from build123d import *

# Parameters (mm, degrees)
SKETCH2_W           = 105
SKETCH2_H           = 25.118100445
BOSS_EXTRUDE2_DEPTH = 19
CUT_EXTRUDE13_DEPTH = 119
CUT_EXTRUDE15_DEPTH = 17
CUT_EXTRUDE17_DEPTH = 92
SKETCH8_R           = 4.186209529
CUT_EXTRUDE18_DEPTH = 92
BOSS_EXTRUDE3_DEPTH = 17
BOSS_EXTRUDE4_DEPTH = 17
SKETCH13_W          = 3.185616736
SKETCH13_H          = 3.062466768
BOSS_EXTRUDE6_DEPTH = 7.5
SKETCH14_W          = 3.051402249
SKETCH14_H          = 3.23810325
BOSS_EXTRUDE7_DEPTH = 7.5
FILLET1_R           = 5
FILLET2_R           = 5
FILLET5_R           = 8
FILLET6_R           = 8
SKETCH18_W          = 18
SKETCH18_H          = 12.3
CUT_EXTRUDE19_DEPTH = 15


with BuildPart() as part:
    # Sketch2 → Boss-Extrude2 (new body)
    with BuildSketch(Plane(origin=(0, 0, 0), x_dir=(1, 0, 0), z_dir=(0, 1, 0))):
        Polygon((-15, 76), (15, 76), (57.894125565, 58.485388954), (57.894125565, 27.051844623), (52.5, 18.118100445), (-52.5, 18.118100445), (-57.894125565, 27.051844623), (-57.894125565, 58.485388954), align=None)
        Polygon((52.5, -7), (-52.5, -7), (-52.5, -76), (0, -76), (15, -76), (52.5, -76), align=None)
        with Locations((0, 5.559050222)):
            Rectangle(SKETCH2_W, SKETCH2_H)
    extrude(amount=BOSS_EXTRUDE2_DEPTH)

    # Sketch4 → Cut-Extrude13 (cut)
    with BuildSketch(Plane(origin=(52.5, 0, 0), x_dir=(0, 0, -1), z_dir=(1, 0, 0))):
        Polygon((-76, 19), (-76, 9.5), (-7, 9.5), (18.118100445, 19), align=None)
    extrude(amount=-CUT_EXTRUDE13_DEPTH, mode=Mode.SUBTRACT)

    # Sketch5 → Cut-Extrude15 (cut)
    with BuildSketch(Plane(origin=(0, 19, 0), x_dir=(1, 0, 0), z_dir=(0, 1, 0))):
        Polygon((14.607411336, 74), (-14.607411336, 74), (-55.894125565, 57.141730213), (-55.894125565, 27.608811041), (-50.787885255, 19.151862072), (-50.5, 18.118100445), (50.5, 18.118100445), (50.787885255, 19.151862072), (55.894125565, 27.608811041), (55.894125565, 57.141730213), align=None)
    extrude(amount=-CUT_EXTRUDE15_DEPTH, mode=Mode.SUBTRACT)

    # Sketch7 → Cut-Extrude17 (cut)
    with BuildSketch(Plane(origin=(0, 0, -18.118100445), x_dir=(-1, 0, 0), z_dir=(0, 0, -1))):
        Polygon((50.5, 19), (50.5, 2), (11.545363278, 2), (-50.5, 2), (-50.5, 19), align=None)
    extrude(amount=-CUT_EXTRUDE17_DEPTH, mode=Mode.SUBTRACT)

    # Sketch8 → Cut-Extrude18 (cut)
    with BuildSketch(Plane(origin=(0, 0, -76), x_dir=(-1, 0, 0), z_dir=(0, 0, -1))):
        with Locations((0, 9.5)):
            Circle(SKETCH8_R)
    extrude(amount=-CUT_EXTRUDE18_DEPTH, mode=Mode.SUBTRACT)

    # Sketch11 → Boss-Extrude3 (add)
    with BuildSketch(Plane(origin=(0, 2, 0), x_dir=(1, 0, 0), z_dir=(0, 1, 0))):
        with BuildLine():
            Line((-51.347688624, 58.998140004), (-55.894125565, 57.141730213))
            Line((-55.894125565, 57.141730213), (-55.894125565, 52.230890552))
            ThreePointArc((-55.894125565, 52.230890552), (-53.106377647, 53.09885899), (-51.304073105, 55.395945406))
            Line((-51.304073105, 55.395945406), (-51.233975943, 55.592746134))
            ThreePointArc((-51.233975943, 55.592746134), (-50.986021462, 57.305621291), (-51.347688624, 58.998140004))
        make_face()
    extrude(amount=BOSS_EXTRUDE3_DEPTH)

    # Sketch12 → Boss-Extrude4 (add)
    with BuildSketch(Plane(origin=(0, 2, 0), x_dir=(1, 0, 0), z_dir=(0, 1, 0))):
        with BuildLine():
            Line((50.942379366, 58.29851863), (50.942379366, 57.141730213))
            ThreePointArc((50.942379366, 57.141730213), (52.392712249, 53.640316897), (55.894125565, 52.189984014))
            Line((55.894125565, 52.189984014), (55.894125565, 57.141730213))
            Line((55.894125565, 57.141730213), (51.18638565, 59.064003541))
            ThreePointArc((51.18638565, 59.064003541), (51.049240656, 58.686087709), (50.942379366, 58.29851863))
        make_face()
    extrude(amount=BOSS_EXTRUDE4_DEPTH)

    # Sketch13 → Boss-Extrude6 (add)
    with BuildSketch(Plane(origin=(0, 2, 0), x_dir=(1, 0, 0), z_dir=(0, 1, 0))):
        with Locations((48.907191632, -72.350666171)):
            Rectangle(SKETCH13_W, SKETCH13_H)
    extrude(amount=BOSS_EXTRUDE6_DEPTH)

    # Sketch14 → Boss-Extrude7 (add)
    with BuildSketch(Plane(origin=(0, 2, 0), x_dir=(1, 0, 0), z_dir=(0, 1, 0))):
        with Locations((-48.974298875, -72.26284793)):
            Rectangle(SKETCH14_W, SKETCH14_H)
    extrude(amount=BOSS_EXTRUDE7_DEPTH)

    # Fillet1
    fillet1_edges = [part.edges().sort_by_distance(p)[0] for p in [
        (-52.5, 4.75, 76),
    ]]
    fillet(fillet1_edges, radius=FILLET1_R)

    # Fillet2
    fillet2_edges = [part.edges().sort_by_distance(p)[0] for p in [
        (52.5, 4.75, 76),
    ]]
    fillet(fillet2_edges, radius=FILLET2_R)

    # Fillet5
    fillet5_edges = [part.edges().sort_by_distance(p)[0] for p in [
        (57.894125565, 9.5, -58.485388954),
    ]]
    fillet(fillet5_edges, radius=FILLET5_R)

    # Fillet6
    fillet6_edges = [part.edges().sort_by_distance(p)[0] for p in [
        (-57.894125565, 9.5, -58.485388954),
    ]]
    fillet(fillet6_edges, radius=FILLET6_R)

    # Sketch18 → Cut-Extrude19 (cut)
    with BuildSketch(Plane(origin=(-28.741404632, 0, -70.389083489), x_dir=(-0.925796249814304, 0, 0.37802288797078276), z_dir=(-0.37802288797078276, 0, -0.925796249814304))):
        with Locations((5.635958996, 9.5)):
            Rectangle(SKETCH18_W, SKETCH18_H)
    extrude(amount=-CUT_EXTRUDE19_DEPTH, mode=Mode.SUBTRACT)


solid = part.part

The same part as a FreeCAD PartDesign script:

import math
import FreeCAD as App
import Part
import Sketcher
from FreeCAD import Vector


def edges_at(feature, points):
    """Names of the edges that pass closest to the given points."""
    edges = feature.Shape.Edges
    near = lambda p: min(range(len(edges)), key=lambda i: edges[i].distToShape(Part.Vertex(*p))[0])
    return sorted({f"Edge{near(p) + 1}" for p in points})


def add_polygon(sketch, points):
    """Adds a closed chain of lines whose ends are joined by coincident constraints."""
    first, n = sketch.GeometryCount, len(points)
    for a, b in zip(points, points[1:] + points[:1]):
        sketch.addGeometry(Part.LineSegment(App.Vector(*a, 0), App.Vector(*b, 0)), False)
    for i in range(n):
        sketch.addConstraint(Sketcher.Constraint("Coincident", first + i, 2, first + (i + 1) % n, 1))

doc = App.newDocument("Part")
body = doc.addObject("PartDesign::Body", "Body")

sketch1 = doc.addObject("Sketcher::SketchObject", "Sketch")
body.addObject(sketch1)
sketch1.AttachmentSupport = (doc.XZ_Plane, [""])
sketch1.MapMode = "FlatFace"
add_polygon(sketch1, [(15, -76), (-15, -76), (-58, -58), (-58, -27), (-52, -18), (-52, 76), (52, 76), (52, -18), (58, -27), (58, -58)])
sketch1.addConstraint(Sketcher.Constraint("Horizontal", 0))
sketch1.addConstraint(Sketcher.Constraint("Vertical", 2))
sketch1.addConstraint(Sketcher.Constraint("Vertical", 4))
sketch1.addConstraint(Sketcher.Constraint("Horizontal", 5))
sketch1.addConstraint(Sketcher.Constraint("Vertical", 6))
sketch1.addConstraint(Sketcher.Constraint("Vertical", 8))
sketch1.addConstraint(Sketcher.Constraint("Symmetric", 3, 2, 6, 2, -2))
sketch1.addConstraint(Sketcher.Constraint("Symmetric", 2, 2, 7, 2, -2))
sketch1.addConstraint(Sketcher.Constraint("Horizontal", 1, 2, 8, 2))
sketch1.addConstraint(Sketcher.Constraint("Equal", 1, 9))
sketch1.addConstraint(Sketcher.Constraint("DistanceX", 0, 2, 0, 1, 30.0))
sketch1.addConstraint(Sketcher.Constraint("DistanceX", 5, 1, 5, 2, 105.0))
sketch1.addConstraint(Sketcher.Constraint("DistanceY", 0, 2, -1, 1, 76.0))
sketch1.addConstraint(Sketcher.Constraint("DistanceY", -1, 1, 4, 2, 76.0))
sketch1.addConstraint(Sketcher.Constraint("DistanceY", 4, 1, 4, 2, 94.1181))
sketch1.addConstraint(Sketcher.Constraint("DistanceY", 2, 1, 2, 2, 31.433544))
sketch1.addConstraint(Sketcher.Constraint("DistanceY", 1, 2, -1, 1, 58.485389))
sketch1.addConstraint(Sketcher.Constraint("DistanceX", 2, 2, 7, 2, 115.788251))
pad1 = doc.addObject("PartDesign::Pad", "Pad")
body.addObject(pad1)
pad1.Profile = sketch1
pad1.Length = 19
pad1.Reversed = True

sketch2 = doc.addObject("Sketcher::SketchObject", "Sketch001")
body.addObject(sketch2)
sketch2.AttachmentSupport = (doc.YZ_Plane, [""])
sketch2.MapMode = "FlatFace"
sketch2.AttachmentOffset = App.Placement(Vector(0, 0, 52.5), App.Rotation())
add_polygon(sketch2, [(19, 76), (10, 76), (10, 7), (19, -18)])
sketch2.addConstraint(Sketcher.Constraint("Horizontal", 0))
sketch2.addConstraint(Sketcher.Constraint("Vertical", 1))
sketch2.addConstraint(Sketcher.Constraint("Vertical", 3))
sketch2.addConstraint(Sketcher.Constraint("DistanceY", 1, 2, 1, 1, 69.0))
sketch2.addConstraint(Sketcher.Constraint("DistanceX", 0, 2, 0, 1, 9.5))
sketch2.addConstraint(Sketcher.Constraint("DistanceY", -1, 1, 0, 2, 76.0))
sketch2.addConstraint(Sketcher.Constraint("DistanceX", -1, 1, 2, 2, 19.0))
sketch2.addConstraint(Sketcher.Constraint("DistanceY", 3, 1, 3, 2, 94.1181))
pocket1 = doc.addObject("PartDesign::Pocket", "Pocket")
body.addObject(pocket1)
pocket1.Profile = sketch2
pocket1.Length = 119

sketch3 = doc.addObject("Sketcher::SketchObject", "Sketch002")
body.addObject(sketch3)
sketch3.AttachmentSupport = (doc.XZ_Plane, [""])
sketch3.MapMode = "FlatFace"
sketch3.AttachmentOffset = App.Placement(Vector(0, 0, -19), App.Rotation())
add_polygon(sketch3, [(14.6, -74), (-14.6, -74), (-55.9, -57.1), (-55.9, -27.6), (-50.8, -19.2), (-50.5, -18.1), (50.5, -18.1), (50.8, -19.2), (55.9, -27.6), (55.9, -57.1)])
sketch3.addConstraint(Sketcher.Constraint("Horizontal", 0))
sketch3.addConstraint(Sketcher.Constraint("Vertical", 2))
sketch3.addConstraint(Sketcher.Constraint("Horizontal", 5))
sketch3.addConstraint(Sketcher.Constraint("Vertical", 8))
sketch3.addConstraint(Sketcher.Constraint("Symmetric", 3, 2, 6, 2, -2))
sketch3.addConstraint(Sketcher.Constraint("Symmetric", 2, 2, 7, 2, -2))
sketch3.addConstraint(Sketcher.Constraint("Horizontal", 1, 2, 8, 2))
sketch3.addConstraint(Sketcher.Constraint("Equal", 4, 6))
sketch3.addConstraint(Sketcher.Constraint("Equal", 1, 9))
sketch3.addConstraint(Sketcher.Constraint("DistanceX", 5, 1, 5, 2, 101.0))
sketch3.addConstraint(Sketcher.Constraint("DistanceY", 0, 2, -1, 1, 74.0))
sketch3.addConstraint(Sketcher.Constraint("Distance", 4, 1.073099))
sketch3.addConstraint(Sketcher.Constraint("DistanceY", 2, 1, 2, 2, 29.532919))
sketch3.addConstraint(Sketcher.Constraint("DistanceY", 4, 2, -1, 1, 18.1181))
sketch3.addConstraint(Sketcher.Constraint("Distance", 3, 9.878951))
sketch3.addConstraint(Sketcher.Constraint("DistanceX", 0, 2, 0, 1, 29.214823))
sketch3.addConstraint(Sketcher.Constraint("DistanceY", 1, 2, -1, 1, 57.14173))
sketch3.addConstraint(Sketcher.Constraint("DistanceX", 2, 2, 3, 2, 5.10624))
pocket2 = doc.addObject("PartDesign::Pocket", "Pocket001")
body.addObject(pocket2)
pocket2.Profile = sketch3
pocket2.Length = 17
pocket2.Reversed = True

sketch4 = doc.addObject("Sketcher::SketchObject", "Sketch003")
body.addObject(sketch4)
sketch4.AttachmentSupport = (doc.XY_Plane, [""])
sketch4.MapMode = "FlatFace"
sketch4.AttachmentOffset = App.Placement(Vector(0, 0, -18.1181), App.Rotation())
add_polygon(sketch4, [(-50, 2), (-50, 19), (50, 19), (50, 2)])
sketch4.addConstraint(Sketcher.Constraint("Vertical", 0))
sketch4.addConstraint(Sketcher.Constraint("Horizontal", 1))
sketch4.addConstraint(Sketcher.Constraint("Vertical", 2))
sketch4.addConstraint(Sketcher.Constraint("Horizontal", 3))
sketch4.addConstraint(Sketcher.Constraint("DistanceX", 1, 1, 1, 2, 101.0))
sketch4.addConstraint(Sketcher.Constraint("DistanceY", 0, 1, 0, 2, 17.0))
sketch4.addConstraint(Sketcher.Constraint("DistanceY", -1, 1, 0, 2, 19.0))
sketch4.addConstraint(Sketcher.Constraint("DistanceX", 0, 2, -1, 1, 50.5))
pocket3 = doc.addObject("PartDesign::Pocket", "Pocket002")
body.addObject(pocket3)
pocket3.Profile = sketch4
pocket3.Length = 92
pocket3.Reversed = True

sketch5 = doc.addObject("Sketcher::SketchObject", "Sketch004")
body.addObject(sketch5)
sketch5.AttachmentSupport = (doc.XY_Plane, [""])
sketch5.MapMode = "FlatFace"
sketch5.AttachmentOffset = App.Placement(Vector(0, 0, -76), App.Rotation())
sketch5.addGeometry(Part.Circle(Vector(0, 9.5, 0), Vector(0, 0, 1), 4.2), False)
sketch5.addConstraint(Sketcher.Constraint("PointOnObject", 0, 3, -2))
sketch5.addConstraint(Sketcher.Constraint("DistanceY", -1, 1, 0, 3, 9.5))
sketch5.addConstraint(Sketcher.Constraint("Diameter", 0, 8.372419))
pocket4 = doc.addObject("PartDesign::Pocket", "Pocket003")
body.addObject(pocket4)
pocket4.Profile = sketch5
pocket4.Length = 92
pocket4.Reversed = True

sketch6 = doc.addObject("Sketcher::SketchObject", "Sketch005")
body.addObject(sketch6)
sketch6.AttachmentSupport = (doc.XZ_Plane, [""])
sketch6.MapMode = "FlatFace"
sketch6.AttachmentOffset = App.Placement(Vector(0, 0, -2), App.Rotation())
sketch6.addGeometry(Part.LineSegment(Vector(-51.35, -59, 0), Vector(-55.89, -57.14, 0)), False)
sketch6.addGeometry(Part.LineSegment(Vector(-55.89, -57.14, 0), Vector(-55.89, -52.23, 0)), False)
sketch6.addGeometry(Part.ArcOfCircle(Part.Circle(Vector(-55.89, -57.14, 0), Vector(0, 0, 1), 4.91), math.radians(21), math.radians(90)), False)
sketch6.addGeometry(Part.LineSegment(Vector(-51.3, -55.4, 0), Vector(-51.23, -55.59, 0)), False)
sketch6.addGeometry(Part.ArcOfCircle(Part.Circle(Vector(-55.89, -57.14, 0), Vector(0, 0, 1), 4.91), math.radians(-22), math.radians(18)), False)
sketch6.addConstraint(Sketcher.Constraint("Coincident", 0, 2, 1, 1))
sketch6.addConstraint(Sketcher.Constraint("Coincident", 1, 2, 2, 2))
sketch6.addConstraint(Sketcher.Constraint("Coincident", 2, 1, 3, 1))
sketch6.addConstraint(Sketcher.Constraint("Coincident", 3, 2, 4, 2))
sketch6.addConstraint(Sketcher.Constraint("Coincident", 4, 1, 0, 1))
sketch6.addConstraint(Sketcher.Constraint("Vertical", 1))
sketch6.addConstraint(Sketcher.Constraint("Coincident", 4, 3, 2, 3))
sketch6.addConstraint(Sketcher.Constraint("Coincident", 0, 2, 2, 3))
sketch6.addConstraint(Sketcher.Constraint("Equal", 2, 4))
sketch6.addConstraint(Sketcher.Constraint("Radius", 2, 4.91084))
sketch6.addConstraint(Sketcher.Constraint("DistanceY", 3, 2, 2, 1, 0.196801))
sketch6.addConstraint(Sketcher.Constraint("Distance", 3, 0.208912))
sketch6.addConstraint(Sketcher.Constraint("DistanceY", 2, 3, -1, 1, 57.14173))
sketch6.addConstraint(Sketcher.Constraint("DistanceX", 4, 1, -1, 1, 51.347689))
sketch6.addConstraint(Sketcher.Constraint("DistanceY", 4, 1, -1, 1, 58.99814))
pad2 = doc.addObject("PartDesign::Pad", "Pad001")
body.addObject(pad2)
pad2.Profile = sketch6
pad2.Length = 17
pad2.Reversed = True

sketch7 = doc.addObject("Sketcher::SketchObject", "Sketch006")
body.addObject(sketch7)
sketch7.AttachmentSupport = (doc.XZ_Plane, [""])
sketch7.MapMode = "FlatFace"
sketch7.AttachmentOffset = App.Placement(Vector(0, 0, -2), App.Rotation())
sketch7.addGeometry(Part.LineSegment(Vector(50.9, -58.3, 0), Vector(50.9, -57.1, 0)), False)
sketch7.addGeometry(Part.ArcOfCircle(Part.Circle(Vector(55.9, -57.1, 0), Vector(0, 0, 1), 5), math.radians(90), math.radians(180)), False)
sketch7.addGeometry(Part.LineSegment(Vector(55.9, -52.2, 0), Vector(55.9, -57.1, 0)), False)
sketch7.addGeometry(Part.LineSegment(Vector(55.9, -57.1, 0), Vector(51.2, -59.1, 0)), False)
sketch7.addGeometry(Part.ArcOfCircle(Part.Circle(Vector(55.9, -57.1, 0), Vector(0, 0, 1), 5.1), math.radians(-166.85), math.radians(-157.79)), False)
sketch7.addConstraint(Sketcher.Constraint("Tangent", 0, 2, 1, 2))
sketch7.addConstraint(Sketcher.Constraint("Coincident", 1, 1, 2, 1))
sketch7.addConstraint(Sketcher.Constraint("Coincident", 2, 2, 3, 1))
sketch7.addConstraint(Sketcher.Constraint("Coincident", 3, 2, 4, 2))
sketch7.addConstraint(Sketcher.Constraint("Coincident", 4, 1, 0, 1))
sketch7.addConstraint(Sketcher.Constraint("Vertical", 0))
sketch7.addConstraint(Sketcher.Constraint("Vertical", 2))
sketch7.addConstraint(Sketcher.Constraint("Coincident", 4, 3, 1, 3))
sketch7.addConstraint(Sketcher.Constraint("Coincident", 2, 2, 1, 3))
sketch7.addConstraint(Sketcher.Constraint("Radius", 4, 5.085071))
sketch7.addConstraint(Sketcher.Constraint("Radius", 1, 4.951746))
sketch7.addConstraint(Sketcher.Constraint("DistanceY", 1, 3, -1, 1, 57.14173))
sketch7.addConstraint(Sketcher.Constraint("DistanceX", -1, 1, 0, 2, 50.942379))
sketch7.addConstraint(Sketcher.Constraint("DistanceX", 3, 2, 1, 3, 4.70774))
pad3 = doc.addObject("PartDesign::Pad", "Pad002")
body.addObject(pad3)
pad3.Profile = sketch7
pad3.Length = 17
pad3.Reversed = True

sketch8 = doc.addObject("Sketcher::SketchObject", "Sketch007")
body.addObject(sketch8)
sketch8.AttachmentSupport = (doc.XZ_Plane, [""])
sketch8.MapMode = "FlatFace"
sketch8.AttachmentOffset = App.Placement(Vector(0, 0, -2), App.Rotation())
add_polygon(sketch8, [(47.3, 70.8), (47.3, 73.9), (50.5, 73.9), (50.5, 70.8)])
sketch8.addConstraint(Sketcher.Constraint("Vertical", 0))
sketch8.addConstraint(Sketcher.Constraint("Horizontal", 1))
sketch8.addConstraint(Sketcher.Constraint("Vertical", 2))
sketch8.addConstraint(Sketcher.Constraint("Horizontal", 3))
sketch8.addConstraint(Sketcher.Constraint("DistanceX", -1, 1, 1, 2, 50.5))
sketch8.addConstraint(Sketcher.Constraint("DistanceY", -1, 1, 0, 2, 73.8819))
sketch8.addConstraint(Sketcher.Constraint("DistanceX", 1, 1, 1, 2, 3.185617))
sketch8.addConstraint(Sketcher.Constraint("DistanceY", 0, 1, 0, 2, 3.062467))
pad4 = doc.addObject("PartDesign::Pad", "Pad003")
body.addObject(pad4)
pad4.Profile = sketch8
pad4.Length = 7.5
pad4.Reversed = True

sketch9 = doc.addObject("Sketcher::SketchObject", "Sketch008")
body.addObject(sketch9)
sketch9.AttachmentSupport = (doc.XZ_Plane, [""])
sketch9.MapMode = "FlatFace"
sketch9.AttachmentOffset = App.Placement(Vector(0, 0, -2), App.Rotation())
add_polygon(sketch9, [(-50.5, 70.6), (-50.5, 73.9), (-47.4, 73.9), (-47.4, 70.6)])
sketch9.addConstraint(Sketcher.Constraint("Vertical", 0))
sketch9.addConstraint(Sketcher.Constraint("Horizontal", 1))
sketch9.addConstraint(Sketcher.Constraint("Vertical", 2))
sketch9.addConstraint(Sketcher.Constraint("Horizontal", 3))
sketch9.addConstraint(Sketcher.Constraint("DistanceX", 0, 2, -1, 1, 50.5))
sketch9.addConstraint(Sketcher.Constraint("DistanceY", -1, 1, 0, 2, 73.8819))
sketch9.addConstraint(Sketcher.Constraint("DistanceX", 1, 1, 1, 2, 3.051402))
sketch9.addConstraint(Sketcher.Constraint("DistanceY", 0, 1, 0, 2, 3.238103))
pad5 = doc.addObject("PartDesign::Pad", "Pad004")
body.addObject(pad5)
pad5.Profile = sketch9
pad5.Length = 7.5
pad5.Reversed = True
doc.recompute()

fillet = doc.addObject("PartDesign::Fillet", "Fillet")
body.addObject(fillet)
fillet.Base = (pad5, edges_at(pad5, [(-52.5, 4.75, 76)]))
fillet.Radius = 5
doc.recompute()

fillet2 = doc.addObject("PartDesign::Fillet", "Fillet001")
body.addObject(fillet2)
fillet2.Base = (fillet, edges_at(fillet, [(52.5, 4.75, 76)]))
fillet2.Radius = 5
doc.recompute()

fillet3 = doc.addObject("PartDesign::Fillet", "Fillet002")
body.addObject(fillet3)
fillet3.Base = (fillet2, edges_at(fillet2, [(57.894, 9.5, -58.485)]))
fillet3.Radius = 8
doc.recompute()

fillet4 = doc.addObject("PartDesign::Fillet", "Fillet003")
body.addObject(fillet4)
fillet4.Base = (fillet3, edges_at(fillet3, [(-57.894, 9.5, -58.485)]))
fillet4.Radius = 8

sketch10 = doc.addObject("Sketcher::SketchObject", "Sketch009")
body.addObject(sketch10)
sketch10.Placement = App.Placement(Vector(-28.741405, 0, -70.389083), App.Rotation(Vector(-0.92579625, 0, 0.378022888), Vector(0, 1, 0), Vector(-0.378022888, 0, -0.92579625), "ZXY"))
add_polygon(sketch10, [(-3, 16), (-3, 3), (15, 3), (15, 16)])
sketch10.addConstraint(Sketcher.Constraint("Vertical", 0))
sketch10.addConstraint(Sketcher.Constraint("Horizontal", 1))
sketch10.addConstraint(Sketcher.Constraint("Vertical", 2))
sketch10.addConstraint(Sketcher.Constraint("Horizontal", 3))
sketch10.addConstraint(Sketcher.Constraint("DistanceX", 1, 1, 1, 2, 18.0))
sketch10.addConstraint(Sketcher.Constraint("DistanceY", 0, 2, 0, 1, 12.3))
sketch10.addConstraint(Sketcher.Constraint("DistanceY", -1, 1, 0, 2, 3.35))
sketch10.addConstraint(Sketcher.Constraint("DistanceX", 0, 2, -1, 1, 3.364041))
pocket5 = doc.addObject("PartDesign::Pocket", "Pocket004")
body.addObject(pocket5)
pocket5.Profile = sketch10
pocket5.Length = 15

doc.recompute()
